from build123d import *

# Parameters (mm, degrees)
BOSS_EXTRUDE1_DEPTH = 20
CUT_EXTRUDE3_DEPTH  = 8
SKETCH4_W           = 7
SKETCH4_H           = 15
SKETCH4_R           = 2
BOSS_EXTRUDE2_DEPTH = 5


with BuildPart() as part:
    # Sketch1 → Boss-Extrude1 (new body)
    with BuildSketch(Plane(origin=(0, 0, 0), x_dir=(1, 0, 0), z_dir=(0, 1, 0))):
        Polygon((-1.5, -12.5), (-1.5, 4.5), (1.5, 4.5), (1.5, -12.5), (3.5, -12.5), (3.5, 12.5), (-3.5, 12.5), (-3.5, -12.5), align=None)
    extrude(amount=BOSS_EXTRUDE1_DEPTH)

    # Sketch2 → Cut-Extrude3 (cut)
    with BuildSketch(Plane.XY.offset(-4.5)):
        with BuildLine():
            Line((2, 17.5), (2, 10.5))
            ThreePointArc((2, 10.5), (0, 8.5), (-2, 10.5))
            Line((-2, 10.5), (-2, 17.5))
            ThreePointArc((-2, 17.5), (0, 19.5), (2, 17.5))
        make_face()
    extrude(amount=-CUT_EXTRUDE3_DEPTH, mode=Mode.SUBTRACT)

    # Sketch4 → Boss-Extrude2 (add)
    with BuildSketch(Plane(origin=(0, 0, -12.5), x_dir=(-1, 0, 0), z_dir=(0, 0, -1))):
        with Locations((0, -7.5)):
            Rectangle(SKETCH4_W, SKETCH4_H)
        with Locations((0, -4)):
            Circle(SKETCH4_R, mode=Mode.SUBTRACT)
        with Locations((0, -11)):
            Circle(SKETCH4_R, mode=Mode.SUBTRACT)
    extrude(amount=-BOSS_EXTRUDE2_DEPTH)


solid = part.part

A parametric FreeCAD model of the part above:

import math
import FreeCAD as App
import Part
import Sketcher

doc = App.newDocument("Part")
body = doc.addObject("PartDesign::Body", "Body")

sketch1 = doc.addObject("Sketcher::SketchObject", "Sketch")
body.addObject(sketch1)
sketch1.AttachmentSupport = (doc.XZ_Plane, [""])
sketch1.MapMode = "FlatFace"
sketch1.addGeometry(Part.LineSegment(App.Vector(-1.5, 12.5, 0), App.Vector(-1.5, -4.5, 0)), False)
sketch1.addGeometry(Part.LineSegment(App.Vector(-1.5, -4.5, 0), App.Vector(1.5, -4.5, 0)), False)
sketch1.addGeometry(Part.LineSegment(App.Vector(1.5, -4.5, 0), App.Vector(1.5, 12.5, 0)), False)
sketch1.addGeometry(Part.LineSegment(App.Vector(1.5, 12.5, 0), App.Vector(3.5, 12.5, 0)), False)
sketch1.addGeometry(Part.LineSegment(App.Vector(3.5, 12.5, 0), App.Vector(3.5, -12.5, 0)), False)
sketch1.addGeometry(Part.LineSegment(App.Vector(3.5, -12.5, 0), App.Vector(-3.5, -12.5, 0)), False)
sketch1.addGeometry(Part.LineSegment(App.Vector(-3.5, -12.5, 0), App.Vector(-3.5, 12.5, 0)), False)
sketch1.addGeometry(Part.LineSegment(App.Vector(-3.5, 12.5, 0), App.Vector(-1.5, 12.5, 0)), False)
sketch1.addConstraint(Sketcher.Constraint("Coincident", 0, 2, 1, 1))
sketch1.addConstraint(Sketcher.Constraint("Coincident", 1, 2, 2, 1))
sketch1.addConstraint(Sketcher.Constraint("Coincident", 2, 2, 3, 1))
sketch1.addConstraint(Sketcher.Constraint("Coincident", 3, 2, 4, 1))
sketch1.addConstraint(Sketcher.Constraint("Coincident", 4, 2, 5, 1))
sketch1.addConstraint(Sketcher.Constraint("Coincident", 5, 2, 6, 1))
sketch1.addConstraint(Sketcher.Constraint("Coincident", 6, 2, 7, 1))
sketch1.addConstraint(Sketcher.Constraint("Coincident", 7, 2, 0, 1))
sketch1.addConstraint(Sketcher.Constraint("Vertical", 0))
sketch1.addConstraint(Sketcher.Constraint("Horizontal", 1))
sketch1.addConstraint(Sketcher.Constraint("Vertical", 2))
sketch1.addConstraint(Sketcher.Constraint("Horizontal", 3))
sketch1.addConstraint(Sketcher.Constraint("Vertical", 4))
sketch1.addConstraint(Sketcher.Constraint("Horizontal", 5))
sketch1.addConstraint(Sketcher.Constraint("Vertical", 6))
sketch1.addConstraint(Sketcher.Constraint("Horizontal", 7))
sketch1.addConstraint(Sketcher.Constraint("Symmetric", 3, 2, 5, 2, -1, 1))
sketch1.addConstraint(Sketcher.Constraint("Symmetric", 2, 2, 7, 2, -2))
sketch1.addConstraint(Sketcher.Constraint("DistanceX", 1, 1, 1, 2, 3.0))
sketch1.addConstraint(Sketcher.Constraint("DistanceX", 3, 1, 3, 2, 2.0))
sketch1.addConstraint(Sketcher.Constraint("DistanceY", 0, 2, 0, 1, 17.0))
sketch1.addConstraint(Sketcher.Constraint("DistanceY", 4, 2, 4, 1, 25.0))
pad1 = doc.addObject("PartDesign::Pad", "Pad")
body.addObject(pad1)
pad1.Profile = sketch1
pad1.Length = 20
pad1.Reversed = True

sketch2 = doc.addObject("Sketcher::SketchObject", "Sketch001")
body.addObject(sketch2)
sketch2.AttachmentSupport = (doc.XY_Plane, [""])
sketch2.MapMode = "FlatFace"
sketch2.AttachmentOffset = App.Placement(App.Vector(0, 0, -4.5), App.Rotation())
sketch2.addGeometry(Part.LineSegment(App.Vector(2, 10.5, 0), App.Vector(2, 17.5, 0)), False)
sketch2.addGeometry(Part.ArcOfCircle(Part.Circle(App.Vector(0, 17.5, 0), App.Vector(0, 0, 1), 2), math.radians(0), math.radians(180)), False)
sketch2.addGeometry(Part.LineSegment(App.Vector(-2, 17.5, 0), App.Vector(-2, 10.5, 0)), False)
sketch2.addGeometry(Part.ArcOfCircle(Part.Circle(App.Vector(0, 10.5, 0), App.Vector(0, 0, 1), 2), math.radians(180), math.radians(360)), False)
sketch2.addConstraint(Sketcher.Constraint("Tangent", 0, 2, 1, 1))
sketch2.addConstraint(Sketcher.Constraint("Tangent", 1, 2, 2, 1))
sketch2.addConstraint(Sketcher.Constraint("Tangent", 2, 2, 3, 1))
sketch2.addConstraint(Sketcher.Constraint("Tangent", 3, 2, 0, 1))
sketch2.addConstraint(Sketcher.Constraint("Vertical", 0))
sketch2.addConstraint(Sketcher.Constraint("Vertical", 2))
sketch2.addConstraint(Sketcher.Constraint("PointOnObject", 1, 3, -2))
sketch2.addConstraint(Sketcher.Constraint("Radius", 1, 2.0))
sketch2.addConstraint(Sketcher.Constraint("DistanceY", 0, 1, 0, 2, 7.0))
sketch2.addConstraint(Sketcher.Constraint("DistanceY", -1, 1, 1, 3, 17.5))
pocket1 = doc.addObject("PartDesign::Pocket", "Pocket")
body.addObject(pocket1)
pocket1.Profile = sketch2
pocket1.Length = 8

sketch3 = doc.addObject("Sketcher::SketchObject", "Sketch002")
body.addObject(sketch3)
sketch3.AttachmentSupport = (doc.XY_Plane, [""])
sketch3.MapMode = "FlatFace"
sketch3.AttachmentOffset = App.Placement(App.Vector(0, 0, -12.5), App.Rotation())
sketch3.addGeometry(Part.LineSegment(App.Vector(3.5, 0, 0), App.Vector(3.5, -15, 0)), False)
sketch3.addGeometry(Part.LineSegment(App.Vector(3.5, -15, 0), App.Vector(-3.5, -15, 0)), False)
sketch3.addGeometry(Part.LineSegment(App.Vector(-3.5, -15, 0), App.Vector(-3.5, 0, 0)), False)
sketch3.addGeometry(Part.LineSegment(App.Vector(-3.5, 0, 0), App.Vector(3.5, 0, 0)), False)
sketch3.addGeometry(Part.Circle(App.Vector(0, -11, 0), App.Vector(0, 0, 1), 2), False)
sketch3.addGeometry(Part.Circle(App.Vector(0, -4, 0), App.Vector(0, 0, 1), 2), False)
sketch3.addConstraint(Sketcher.Constraint("Coincident", 0, 2, 1, 1))
sketch3.addConstraint(Sketcher.Constraint("Coincident", 1, 2, 2, 1))
sketch3.addConstraint(Sketcher.Constraint("Coincident", 2, 2, 3, 1))
sketch3.addConstraint(Sketcher.Constraint("Coincident", 3, 2, 0, 1))
sketch3.addConstraint(Sketcher.Constraint("Vertical", 0))
sketch3.addConstraint(Sketcher.Constraint("Horizontal", 1))
sketch3.addConstraint(Sketcher.Constraint("Vertical", 2))
sketch3.addConstraint(Sketcher.Constraint("Horizontal", 3))
sketch3.addConstraint(Sketcher.Constraint("Equal", 4, 5))
sketch3.addConstraint(Sketcher.Constraint("Symmetric", 2, 2, 3, 2, -1, 1))
sketch3.addConstraint(Sketcher.Constraint("PointOnObject", 4, 3, -2))
sketch3.addConstraint(Sketcher.Constraint("PointOnObject", 5, 3, -2))
sketch3.addConstraint(Sketcher.Constraint("Diameter", 4, 4.0))
sketch3.addConstraint(Sketcher.Constraint("DistanceX", 1, 2, 1, 1, 7.0))
sketch3.addConstraint(Sketcher.Constraint("DistanceY", 0, 2, 0, 1, 15.0))
sketch3.addConstraint(Sketcher.Constraint("DistanceY", 4, 3, -1, 1, 11.0))
sketch3.addConstraint(Sketcher.Constraint("DistanceY", 5, 3, -1, 1, 4.0))
pad2 = doc.addObject("PartDesign::Pad", "Pad001")
body.addObject(pad2)
pad2.Profile = sketch3
pad2.Length = 5

doc.recompute()
